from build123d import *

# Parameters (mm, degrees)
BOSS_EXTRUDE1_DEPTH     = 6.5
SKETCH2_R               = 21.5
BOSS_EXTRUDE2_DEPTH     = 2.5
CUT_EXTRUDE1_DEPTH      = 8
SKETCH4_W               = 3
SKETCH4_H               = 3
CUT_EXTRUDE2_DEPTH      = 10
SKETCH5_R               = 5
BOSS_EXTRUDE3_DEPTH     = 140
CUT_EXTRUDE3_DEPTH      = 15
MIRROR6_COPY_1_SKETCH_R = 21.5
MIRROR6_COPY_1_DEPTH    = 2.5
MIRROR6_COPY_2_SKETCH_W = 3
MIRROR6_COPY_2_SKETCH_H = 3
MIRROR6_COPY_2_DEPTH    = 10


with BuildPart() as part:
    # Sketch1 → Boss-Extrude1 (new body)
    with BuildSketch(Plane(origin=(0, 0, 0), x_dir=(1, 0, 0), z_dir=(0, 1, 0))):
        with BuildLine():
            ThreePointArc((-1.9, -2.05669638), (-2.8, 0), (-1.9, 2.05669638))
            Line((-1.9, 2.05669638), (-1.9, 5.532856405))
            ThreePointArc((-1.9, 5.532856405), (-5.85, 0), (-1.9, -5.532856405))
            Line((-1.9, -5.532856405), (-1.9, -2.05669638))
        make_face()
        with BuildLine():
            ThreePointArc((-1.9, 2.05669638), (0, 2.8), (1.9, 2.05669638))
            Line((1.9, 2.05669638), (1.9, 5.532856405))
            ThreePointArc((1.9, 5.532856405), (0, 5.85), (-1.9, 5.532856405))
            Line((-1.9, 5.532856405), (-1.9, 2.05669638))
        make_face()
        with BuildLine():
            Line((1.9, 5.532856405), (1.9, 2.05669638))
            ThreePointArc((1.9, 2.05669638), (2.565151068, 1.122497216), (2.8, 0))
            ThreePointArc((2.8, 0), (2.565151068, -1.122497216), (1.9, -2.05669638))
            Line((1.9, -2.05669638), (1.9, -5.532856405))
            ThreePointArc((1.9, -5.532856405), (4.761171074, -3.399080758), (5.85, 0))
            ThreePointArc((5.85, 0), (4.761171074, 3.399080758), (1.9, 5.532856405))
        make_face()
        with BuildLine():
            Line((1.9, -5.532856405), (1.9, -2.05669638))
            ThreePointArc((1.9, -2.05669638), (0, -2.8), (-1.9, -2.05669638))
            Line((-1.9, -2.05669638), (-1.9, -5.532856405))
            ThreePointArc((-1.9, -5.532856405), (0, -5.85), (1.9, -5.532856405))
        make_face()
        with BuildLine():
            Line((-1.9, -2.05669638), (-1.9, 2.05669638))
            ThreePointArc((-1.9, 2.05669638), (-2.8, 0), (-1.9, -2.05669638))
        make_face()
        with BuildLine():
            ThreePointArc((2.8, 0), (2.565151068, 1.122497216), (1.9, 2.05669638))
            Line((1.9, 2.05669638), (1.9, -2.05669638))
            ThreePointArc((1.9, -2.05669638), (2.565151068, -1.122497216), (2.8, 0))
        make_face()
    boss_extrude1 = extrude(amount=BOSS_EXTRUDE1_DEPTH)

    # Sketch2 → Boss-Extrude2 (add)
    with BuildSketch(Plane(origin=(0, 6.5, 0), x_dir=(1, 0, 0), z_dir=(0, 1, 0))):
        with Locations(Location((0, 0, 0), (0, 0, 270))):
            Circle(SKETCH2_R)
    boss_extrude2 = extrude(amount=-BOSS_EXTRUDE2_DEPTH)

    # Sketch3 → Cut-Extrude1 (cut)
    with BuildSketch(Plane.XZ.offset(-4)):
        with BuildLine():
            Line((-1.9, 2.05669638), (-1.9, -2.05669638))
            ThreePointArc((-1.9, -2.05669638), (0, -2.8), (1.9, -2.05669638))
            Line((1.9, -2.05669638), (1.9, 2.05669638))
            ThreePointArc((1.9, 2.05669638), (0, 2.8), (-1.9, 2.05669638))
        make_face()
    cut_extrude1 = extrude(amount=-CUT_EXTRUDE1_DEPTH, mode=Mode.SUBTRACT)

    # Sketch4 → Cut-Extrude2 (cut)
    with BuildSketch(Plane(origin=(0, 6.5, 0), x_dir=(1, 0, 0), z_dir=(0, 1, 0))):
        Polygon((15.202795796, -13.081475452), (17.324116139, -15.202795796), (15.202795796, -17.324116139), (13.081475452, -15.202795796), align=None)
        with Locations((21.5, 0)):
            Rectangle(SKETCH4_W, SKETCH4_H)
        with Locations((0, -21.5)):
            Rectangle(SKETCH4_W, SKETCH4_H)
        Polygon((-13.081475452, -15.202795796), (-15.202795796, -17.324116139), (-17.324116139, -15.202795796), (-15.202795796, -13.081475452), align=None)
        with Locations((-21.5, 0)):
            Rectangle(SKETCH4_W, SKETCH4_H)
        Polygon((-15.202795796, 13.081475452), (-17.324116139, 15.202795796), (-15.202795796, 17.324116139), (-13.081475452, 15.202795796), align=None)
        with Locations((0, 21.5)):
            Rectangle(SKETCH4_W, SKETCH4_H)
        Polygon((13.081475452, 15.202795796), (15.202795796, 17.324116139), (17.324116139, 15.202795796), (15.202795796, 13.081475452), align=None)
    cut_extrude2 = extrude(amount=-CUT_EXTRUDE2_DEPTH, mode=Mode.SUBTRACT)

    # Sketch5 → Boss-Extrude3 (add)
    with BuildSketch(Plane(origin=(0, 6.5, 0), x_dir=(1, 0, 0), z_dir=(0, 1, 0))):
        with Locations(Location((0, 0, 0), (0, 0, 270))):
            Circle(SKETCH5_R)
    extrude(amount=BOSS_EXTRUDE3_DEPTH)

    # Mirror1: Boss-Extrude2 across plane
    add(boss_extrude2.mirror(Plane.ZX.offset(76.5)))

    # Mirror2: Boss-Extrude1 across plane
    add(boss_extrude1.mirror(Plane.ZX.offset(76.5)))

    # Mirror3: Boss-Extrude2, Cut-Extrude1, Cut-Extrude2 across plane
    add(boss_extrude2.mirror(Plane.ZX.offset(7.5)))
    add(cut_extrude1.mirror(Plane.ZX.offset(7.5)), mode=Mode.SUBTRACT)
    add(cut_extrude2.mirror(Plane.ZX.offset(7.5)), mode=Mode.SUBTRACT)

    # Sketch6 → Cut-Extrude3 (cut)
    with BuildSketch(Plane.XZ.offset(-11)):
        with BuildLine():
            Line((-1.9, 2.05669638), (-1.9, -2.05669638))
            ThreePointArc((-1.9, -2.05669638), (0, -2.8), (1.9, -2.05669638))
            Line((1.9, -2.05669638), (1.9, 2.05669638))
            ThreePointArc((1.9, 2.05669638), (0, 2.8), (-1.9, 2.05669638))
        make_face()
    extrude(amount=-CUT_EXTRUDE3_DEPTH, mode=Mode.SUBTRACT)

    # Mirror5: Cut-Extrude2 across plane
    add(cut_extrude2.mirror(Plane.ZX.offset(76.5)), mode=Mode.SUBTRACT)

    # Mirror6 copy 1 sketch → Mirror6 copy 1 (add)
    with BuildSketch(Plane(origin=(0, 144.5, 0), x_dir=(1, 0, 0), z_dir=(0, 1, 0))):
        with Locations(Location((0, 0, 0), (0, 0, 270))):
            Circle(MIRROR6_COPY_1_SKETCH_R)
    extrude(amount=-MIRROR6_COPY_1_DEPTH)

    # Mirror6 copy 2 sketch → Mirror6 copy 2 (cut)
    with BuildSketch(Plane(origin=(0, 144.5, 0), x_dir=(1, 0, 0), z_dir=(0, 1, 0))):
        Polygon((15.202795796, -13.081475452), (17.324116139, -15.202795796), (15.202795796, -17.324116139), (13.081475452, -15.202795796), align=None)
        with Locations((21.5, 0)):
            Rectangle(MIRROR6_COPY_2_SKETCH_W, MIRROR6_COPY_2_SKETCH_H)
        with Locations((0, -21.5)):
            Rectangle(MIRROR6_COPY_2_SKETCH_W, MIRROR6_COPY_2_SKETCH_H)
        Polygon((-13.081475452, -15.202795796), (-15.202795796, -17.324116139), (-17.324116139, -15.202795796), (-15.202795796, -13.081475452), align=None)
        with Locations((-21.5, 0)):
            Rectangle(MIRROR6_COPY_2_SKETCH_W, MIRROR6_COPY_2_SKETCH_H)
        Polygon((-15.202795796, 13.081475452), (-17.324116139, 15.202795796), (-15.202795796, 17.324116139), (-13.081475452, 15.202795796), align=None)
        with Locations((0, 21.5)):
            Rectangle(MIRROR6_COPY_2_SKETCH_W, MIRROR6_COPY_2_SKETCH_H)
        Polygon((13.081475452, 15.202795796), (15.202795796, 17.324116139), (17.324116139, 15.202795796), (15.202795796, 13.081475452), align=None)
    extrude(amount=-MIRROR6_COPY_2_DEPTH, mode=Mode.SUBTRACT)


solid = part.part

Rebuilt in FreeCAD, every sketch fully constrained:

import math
import FreeCAD as App
import Part
import Sketcher

V = App.Vector

doc = App.newDocument("Part")
params = doc.addObject("Spreadsheet::Sheet", "Params")
for row, (alias, value) in enumerate([
    ("sketch1_radius", "2.8 mm"),
    ("sketch1_radius2", "5.85 mm"),
    ("pad1_length", "6.5 mm"),
    ("sketch2_diameter", "43 mm"),
    ("pad2_length", "2.5 mm"),
    ("sketch3_radius", "2.8 mm"),
    ("pocket1_length", "8 mm"),
    ("sketch4_width", "3 mm"),
    ("sketch4_length", "3 mm"),
    ("pocket2_length", "10 mm"),
    ("sketch5_diameter", "10 mm"),
    ("pad3_length", "140 mm"),
    ("sketch6_radius", "2.8 mm"),
    ("pocket3_length", "15 mm"),
    ("sketch7_diameter", "43 mm"),
    ("pad4_length", "2.5 mm"),
    ("sketch8_width", "3 mm"),
    ("sketch8_length", "3 mm"),
    ("pocket4_length", "10 mm"),
], start=1):
    params.set(f"A{row}", alias)
    params.set(f"B{row}", "=" + value)
    params.setAlias(f"B{row}", alias)

body = doc.addObject("PartDesign::Body", "Body")

# Sketch on XZ plane
sketch1 = body.newObject("Sketcher::SketchObject", "Sketch")
sketch1.AttachmentSupport = (doc.getObject("XZ_Plane"), [""])
sketch1.MapMode = "FlatFace"
sketch1.addGeometry([
    Part.ArcOfCircle(Part.Circle(V(0, 0, 0), V(0, 0, 1), 5.85), math.radians(0), math.radians(71.04737)),  # 0
    Part.ArcOfCircle(Part.Circle(V(0, 0, 0), V(0, 0, 1), 5.85), math.radians(-71.04737), math.radians(0)),  # 1
    Part.ArcOfCircle(Part.Circle(V(0, 0, 0), V(0, 0, 1), 5.85), math.radians(-108.95263), math.radians(-71.04737)),  # 2
    Part.ArcOfCircle(Part.Circle(V(0, 0, 0), V(0, 0, 1), 5.85), math.radians(108.95263), math.radians(251.04737)),  # 3
    Part.ArcOfCircle(Part.Circle(V(0, 0, 0), V(0, 0, 1), 5.85), math.radians(71.04737), math.radians(108.95263)),  # 4
    Part.ArcOfCircle(Part.Circle(V(0, 0, 0), V(0, 0, 1), 2.8), math.radians(-132.73211), math.radians(-47.26789)),  # 5
    Part.LineSegment(V(1.9, -2.056696, 0), V(1.9, 2.056696, 0)),  # 6
    Part.ArcOfCircle(Part.Circle(V(0, 0, 0), V(0, 0, 1), 2.8), math.radians(47.26789), math.radians(132.73211)),  # 7
    Part.LineSegment(V(-1.9, 2.056696, 0), V(-1.9, -2.056696, 0)),  # 8
], False)
sketch1.addConstraint([
    Sketcher.Constraint("Tangent", 0, 1, 1, 2),
    Sketcher.Constraint("Tangent", 1, 1, 2, 2),
    Sketcher.Constraint("Tangent", 2, 1, 3, 2),
    Sketcher.Constraint("Tangent", 3, 1, 4, 2),
    Sketcher.Constraint("Tangent", 4, 1, 0, 2),
    Sketcher.Constraint("Coincident", 5, 2, 6, 1),
    Sketcher.Constraint("Coincident", 6, 2, 7, 1),
    Sketcher.Constraint("Coincident", 7, 2, 8, 1),
    Sketcher.Constraint("Coincident", 8, 2, 5, 1),
    Sketcher.Constraint("Vertical", 6),
    Sketcher.Constraint("Vertical", 8),
    Sketcher.Constraint("Coincident", 0, 3, -1, 1),
    Sketcher.Constraint("Coincident", 2, 3, -1, 1),
    Sketcher.Constraint("Coincident", 5, 3, -1, 1),
    Sketcher.Constraint("Coincident", 7, 3, -1, 1),
    Sketcher.Constraint("Equal", 5, 7),
    Sketcher.Constraint("PointOnObject", 0, 1, -1),
    Sketcher.Constraint("Horizontal", 1, 1, 2, 1),
    Sketcher.Constraint("Horizontal", 3, 1, 4, 1),
    Sketcher.Constraint("Horizontal", 6, 2, 7, 2),
    Sketcher.Constraint("Vertical", 2, 1, 3, 1),
    Sketcher.Constraint("Vertical", 4, 1, 5, 2),
    Sketcher.Constraint("Radius", 5, 2.8),
    Sketcher.Constraint("Radius", 0, 5.85),
    Sketcher.Constraint("DistanceX", -1, 1, 1, 1, 1.9),
])
sketch1.setExpression("Constraints[22]", "Params.sketch1_radius")
sketch1.setExpression("Constraints[23]", "Params.sketch1_radius2")
pad1 = body.newObject("PartDesign::Pad", "Pad")
pad1.Profile = sketch1
pad1.setExpression("Length", "Params.pad1_length")
pad1.Reversed = True

# Sketch on XZ plane
sketch2 = body.newObject("Sketcher::SketchObject", "Sketch001")
sketch2.AttachmentSupport = (doc.getObject("XZ_Plane"), [""])
sketch2.MapMode = "FlatFace"
sketch2.AttachmentOffset = App.Placement(V(0, 0, -6.5), App.Rotation())
sketch2.addGeometry(Part.Circle(V(0, 0, 0), V(0, 0, 1), 21.5), False)
sketch2.addConstraint([
    Sketcher.Constraint("Coincident", 0, 3, -1, 1),
    Sketcher.Constraint("Diameter", 0, 43.0),
])
sketch2.setExpression("Constraints[1]", "Params.sketch2_diameter")
pad2 = body.newObject("PartDesign::Pad", "Pad001")
pad2.Profile = sketch2
pad2.setExpression("Length", "Params.pad2_length")

# Sketch on XZ plane
sketch3 = body.newObject("Sketcher::SketchObject", "Sketch002")
sketch3.AttachmentSupport = (doc.getObject("XZ_Plane"), [""])
sketch3.MapMode = "FlatFace"
sketch3.AttachmentOffset = App.Placement(V(0, 0, -4), App.Rotation())
sketch3.addGeometry([
    Part.LineSegment(V(-1.9, 2.056696, 0), V(-1.9, -2.056696, 0)),
    Part.ArcOfCircle(Part.Circle(V(0, 0, 0), V(0, 0, 1), 2.8), math.radians(-132.73211), math.radians(-47.26789)),
    Part.LineSegment(V(1.9, -2.056696, 0), V(1.9, 2.056696, 0)),
    Part.ArcOfCircle(Part.Circle(V(0, 0, 0), V(0, 0, 1), 2.8), math.radians(47.26789), math.radians(132.73211)),
], False)
sketch3.addConstraint([
    Sketcher.Constraint("Coincident", 0, 2, 1, 1),
    Sketcher.Constraint("Coincident", 1, 2, 2, 1),
    Sketcher.Constraint("Coincident", 2, 2, 3, 1),
    Sketcher.Constraint("Coincident", 3, 2, 0, 1),
    Sketcher.Constraint("Vertical", 0),
    Sketcher.Constraint("Vertical", 2),
    Sketcher.Constraint("Coincident", 1, 3, -1, 1),
    Sketcher.Constraint("Coincident", 3, 3, -1, 1),
    Sketcher.Constraint("Equal", 1, 3),
    Sketcher.Constraint("Horizontal", 0, 2, 1, 2),
    Sketcher.Constraint("Radius", 1, 2.8),
    Sketcher.Constraint("DistanceX", 0, 2, -1, 1, 1.9),
])
sketch3.setExpression("Constraints[10]", "Params.sketch3_radius")
pocket1 = body.newObject("PartDesign::Pocket", "Pocket")
pocket1.Profile = sketch3
pocket1.setExpression("Length", "Params.pocket1_length")

# Sketch on XZ plane
sketch4 = body.newObject("Sketcher::SketchObject", "Sketch003")
sketch4.AttachmentSupport = (doc.getObject("XZ_Plane"), [""])
sketch4.MapMode = "FlatFace"
sketch4.AttachmentOffset = App.Placement(V(0, 0, -6.5), App.Rotation())
sketch4.addGeometry([
    Part.LineSegment(V(17.324116, 15.202796, 0), V(15.202796, 13.081475, 0)),  # 0
    Part.LineSegment(V(15.202796, 13.081475, 0), V(13.081475, 15.202796, 0)),  # 1
    Part.LineSegment(V(13.081475, 15.202796, 0), V(15.202796, 17.324116, 0)),  # 2
    Part.LineSegment(V(15.202796, 17.324116, 0), V(17.324116, 15.202796, 0)),  # 3
    Part.LineSegment(V(20, -1.5, 0), V(20, 1.5, 0)),  # 4
    Part.LineSegment(V(20, 1.5, 0), V(23, 1.5, 0)),  # 5
    Part.LineSegment(V(23, 1.5, 0), V(23, -1.5, 0)),  # 6
    Part.LineSegment(V(23, -1.5, 0), V(20, -1.5, 0)),  # 7
    Part.LineSegment(V(-1.5, 20, 0), V(-1.5, 23, 0)),  # 8
    Part.LineSegment(V(-1.5, 23, 0), V(1.5, 23, 0)),  # 9
    Part.LineSegment(V(1.5, 23, 0), V(1.5, 20, 0)),  # 10
    Part.LineSegment(V(1.5, 20, 0), V(-1.5, 20, 0)),  # 11
    Part.LineSegment(V(-15.202796, 17.324116, 0), V(-13.081475, 15.202796, 0)),  # 12
    Part.LineSegment(V(-13.081475, 15.202796, 0), V(-15.202796, 13.081475, 0)),  # 13
    Part.LineSegment(V(-15.202796, 13.081475, 0), V(-17.324116, 15.202796, 0)),  # 14
    Part.LineSegment(V(-17.324116, 15.202796, 0), V(-15.202796, 17.324116, 0)),  # 15
    Part.LineSegment(V(-23, -1.5, 0), V(-23, 1.5, 0)),  # 16
    Part.LineSegment(V(-23, 1.5, 0), V(-20, 1.5, 0)),  # 17
    Part.LineSegment(V(-20, 1.5, 0), V(-20, -1.5, 0)),  # 18
    Part.LineSegment(V(-20, -1.5, 0), V(-23, -1.5, 0)),  # 19
    Part.LineSegment(V(-17.324116, -15.202796, 0), V(-15.202796, -13.081475, 0)),  # 20
    Part.LineSegment(V(-15.202796, -13.081475, 0), V(-13.081475, -15.202796, 0)),  # 21
    Part.LineSegment(V(-13.081475, -15.202796, 0), V(-15.202796, -17.324116, 0)),  # 22
    Part.LineSegment(V(-15.202796, -17.324116, 0), V(-17.324116, -15.202796, 0)),  # 23
    Part.LineSegment(V(-1.5, -23, 0), V(-1.5, -20, 0)),  # 24
    Part.LineSegment(V(-1.5, -20, 0), V(1.5, -20, 0)),  # 25
    Part.LineSegment(V(1.5, -20, 0), V(1.5, -23, 0)),  # 26
    Part.LineSegment(V(1.5, -23, 0), V(-1.5, -23, 0)),  # 27
    Part.LineSegment(V(15.202796, -17.324116, 0), V(13.081475, -15.202796, 0)),  # 28
    Part.LineSegment(V(13.081475, -15.202796, 0), V(15.202796, -13.081475, 0)),  # 29
    Part.LineSegment(V(15.202796, -13.081475, 0), V(17.324116, -15.202796, 0)),  # 30
    Part.LineSegment(V(17.324116, -15.202796, 0), V(15.202796, -17.324116, 0)),  # 31
], False)
sketch4.addConstraint([
    Sketcher.Constraint("Coincident", 0, 2, 1, 1),
    Sketcher.Constraint("Coincident", 1, 2, 2, 1),
    Sketcher.Constraint("Coincident", 2, 2, 3, 1),
    Sketcher.Constraint("Coincident", 3, 2, 0, 1),
    Sketcher.Constraint("Coincident", 4, 2, 5, 1),
    Sketcher.Constraint("Coincident", 5, 2, 6, 1),
    Sketcher.Constraint("Coincident", 6, 2, 7, 1),
    Sketcher.Constraint("Coincident", 7, 2, 4, 1),
    Sketcher.Constraint("Coincident", 8, 2, 9, 1),
    Sketcher.Constraint("Coincident", 9, 2, 10, 1),
    Sketcher.Constraint("Coincident", 10, 2, 11, 1),
    Sketcher.Constraint("Coincident", 11, 2, 8, 1),
    Sketcher.Constraint("Coincident", 12, 2, 13, 1),
    Sketcher.Constraint("Coincident", 13, 2, 14, 1),
    Sketcher.Constraint("Coincident", 14, 2, 15, 1),
    Sketcher.Constraint("Coincident", 15, 2, 12, 1),
    Sketcher.Constraint("Coincident", 16, 2, 17, 1),
    Sketcher.Constraint("Coincident", 17, 2, 18, 1),
    Sketcher.Constraint("Coincident", 18, 2, 19, 1),
    Sketcher.Constraint("Coincident", 19, 2, 16, 1),
    Sketcher.Constraint("Coincident", 20, 2, 21, 1),
    Sketcher.Constraint("Coincident", 21, 2, 22, 1),
    Sketcher.Constraint("Coincident", 22, 2, 23, 1),
    Sketcher.Constraint("Coincident", 23, 2, 20, 1),
    Sketcher.Constraint("Coincident", 24, 2, 25, 1),
    Sketcher.Constraint("Coincident", 25, 2, 26, 1),
    Sketcher.Constraint("Coincident", 26, 2, 27, 1),
    Sketcher.Constraint("Coincident", 27, 2, 24, 1),
    Sketcher.Constraint("Coincident", 28, 2, 29, 1),
    Sketcher.Constraint("Coincident", 29, 2, 30, 1),
    Sketcher.Constraint("Coincident", 30, 2, 31, 1),
    Sketcher.Constraint("Coincident", 31, 2, 28, 1),
    Sketcher.Constraint("Vertical", 4),
    Sketcher.Constraint("Horizontal", 5),
    Sketcher.Constraint("Vertical", 6),
    Sketcher.Constraint("Horizontal", 7),
    Sketcher.Constraint("Vertical", 8),
    Sketcher.Constraint("Horizontal", 9),
    Sketcher.Constraint("Vertical", 10),
    Sketcher.Constraint("Horizontal", 11),
    Sketcher.Constraint("Vertical", 16),
    Sketcher.Constraint("Horizontal", 17),
    Sketcher.Constraint("Vertical", 18),
    Sketcher.Constraint("Horizontal", 19),
    Sketcher.Constraint("Vertical", 24),
    Sketcher.Constraint("Horizontal", 25),
    Sketcher.Constraint("Vertical", 26),
    Sketcher.Constraint("Horizontal", 27),
    Sketcher.Constraint("Symmetric", 6, 2, 16, 2, -1, 1),
    Sketcher.Constraint("Symmetric", 4, 2, 18, 2, -1, 1),
    Sketcher.Constraint("Symmetric", 0, 2, 20, 2, -1, 1),
    Sketcher.Constraint("Symmetric", 1, 2, 21, 2, -1, 1),
    Sketcher.Constraint("Symmetric", 2, 2, 22, 2, -1, 1),
    Sketcher.Constraint("Symmetric", 3, 2, 23, 2, -1, 1),
    Sketcher.Constraint("Symmetric", 10, 2, 24, 2, -1, 1),
    Sketcher.Constraint("Symmetric", 8, 2, 26, 2, -1, 1),
    Sketcher.Constraint("Symmetric", 12, 2, 28, 2, -1, 1),
    Sketcher.Constraint("Symmetric", 13, 2, 29, 2, -1, 1),
    Sketcher.Constraint("Symmetric", 14, 2, 30, 2, -1, 1),
    Sketcher.Constraint("Symmetric", 15, 2, 31, 2, -1, 1),
    Sketcher.Constraint("Symmetric", 1, 2, 12, 2, -2),
    Sketcher.Constraint("Symmetric", 0, 2, 13, 2, -2),
    Sketcher.Constraint("Symmetric", 3, 2, 14, 2, -2),
    Sketcher.Constraint("Symmetric", 2, 2, 15, 2, -2),
    Sketcher.Constraint("Perpendicular", 0, 1),
    Sketcher.Constraint("Perpendicular", 1, 2),
    Sketcher.Constraint("Perpendicular", 2, 3),
    Sketcher.Constraint("Parallel", 3, 12),
    Sketcher.Constraint("Horizontal", 1, 2, 3, 2),
    Sketcher.Constraint("Horizontal", 5, 2, 16, 2),
    Sketcher.Constraint("Vertical", 11, 2, 24, 2),
    Sketcher.Constraint("Equal", 7, 9),
    Sketcher.Constraint("Equal", 27, 4),
    Sketcher.Constraint("Equal", 6, 8),
    Sketcher.Constraint("DistanceX", 5, 1, 5, 2, 3.0),
    Sketcher.Constraint("Distance", 0, 3.0),
    Sketcher.Constraint("DistanceX", -1, 1, 4, 2, 20.0),
    Sketcher.Constraint("DistanceY", -1, 1, 8, 2, 23.0),
    Sketcher.Constraint("DistanceX", 12, 2, 1, 2, 26.162951),
    Sketcher.Constraint("DistanceY", 20, 2, 13, 2, 26.162951),
])
sketch4.setExpression("Constraints[74]", "Params.sketch4_width")
sketch4.setExpression("Constraints[75]", "Params.sketch4_length")
pocket2 = body.newObject("PartDesign::Pocket", "Pocket001")
pocket2.Profile = sketch4
pocket2.setExpression("Length", "Params.pocket2_length")
pocket2.Reversed = True

# Sketch on XZ plane
sketch5 = body.newObject("Sketcher::SketchObject", "Sketch004")
sketch5.AttachmentSupport = (doc.getObject("XZ_Plane"), [""])
sketch5.MapMode = "FlatFace"
sketch5.AttachmentOffset = App.Placement(V(0, 0, -6.5), App.Rotation())
sketch5.addGeometry(Part.Circle(V(0, 0, 0), V(0, 0, 1), 5), False)
sketch5.addConstraint([
    Sketcher.Constraint("Coincident", 0, 3, -1, 1),
    Sketcher.Constraint("Diameter", 0, 10.0),
])
sketch5.setExpression("Constraints[1]", "Params.sketch5_diameter")
pad3 = body.newObject("PartDesign::Pad", "Pad002")
pad3.Profile = sketch5
pad3.setExpression("Length", "Params.pad3_length")
pad3.Reversed = True
doc.recompute()

datumplane = body.newObject("PartDesign::Plane", "DatumPlane")
datumplane.AttachmentSupport = (doc.getObject("XZ_Plane"), [""])
datumplane.MapMode = "FlatFace"
datumplane.AttachmentOffset = App.Placement(V(0, 0, -76.5), App.Rotation())
mirrored = body.newObject("PartDesign::Mirrored", "Mirrored")
mirrored.Originals = [pad2]
mirrored.MirrorPlane = (datumplane, [""])
body.Tip = mirrored
doc.recompute()

datumplane2 = body.newObject("PartDesign::Plane", "DatumPlane001")
datumplane2.AttachmentSupport = (doc.getObject("XZ_Plane"), [""])
datumplane2.MapMode = "FlatFace"
datumplane2.AttachmentOffset = App.Placement(V(0, 0, -76.5), App.Rotation())
mirrored2 = body.newObject("PartDesign::Mirrored", "Mirrored001")
mirrored2.Originals = [pad1]
mirrored2.MirrorPlane = (datumplane2, [""])
body.Tip = mirrored2
doc.recompute()

datumplane3 = body.newObject("PartDesign::Plane", "DatumPlane002")
datumplane3.AttachmentSupport = (doc.getObject("XZ_Plane"), [""])
datumplane3.MapMode = "FlatFace"
datumplane3.AttachmentOffset = App.Placement(V(0, 0, -7.5), App.Rotation())
mirrored3 = body.newObject("PartDesign::Mirrored", "Mirrored002")
mirrored3.Originals = [pad2, pocket1, pocket2]
mirrored3.MirrorPlane = (datumplane3, [""])
body.Tip = mirrored3

# Sketch on XZ plane
sketch6 = body.newObject("Sketcher::SketchObject", "Sketch005")
sketch6.AttachmentSupport = (doc.getObject("XZ_Plane"), [""])
sketch6.MapMode = "FlatFace"
sketch6.AttachmentOffset = App.Placement(V(0, 0, -11), App.Rotation())
sketch6.addGeometry([
    Part.LineSegment(V(-1.9, 2.056696, 0), V(-1.9, -2.056696, 0)),
    Part.ArcOfCircle(Part.Circle(V(0, 0, 0), V(0, 0, 1), 2.8), math.radians(-132.73211), math.radians(-47.26789)),
    Part.LineSegment(V(1.9, -2.056696, 0), V(1.9, 2.056696, 0)),
    Part.ArcOfCircle(Part.Circle(V(0, 0, 0), V(0, 0, 1), 2.8), math.radians(47.26789), math.radians(132.73211)),
], False)
sketch6.addConstraint([
    Sketcher.Constraint("Coincident", 0, 2, 1, 1),
    Sketcher.Constraint("Coincident", 1, 2, 2, 1),
    Sketcher.Constraint("Coincident", 2, 2, 3, 1),
    Sketcher.Constraint("Coincident", 3, 2, 0, 1),
    Sketcher.Constraint("Vertical", 0),
    Sketcher.Constraint("Vertical", 2),
    Sketcher.Constraint("Coincident", 1, 3, -1, 1),
    Sketcher.Constraint("Coincident", 3, 3, -1, 1),
    Sketcher.Constraint("Equal", 1, 3),
    Sketcher.Constraint("Horizontal", 0, 2, 1, 2),
    Sketcher.Constraint("Radius", 1, 2.8),
    Sketcher.Constraint("DistanceX", 0, 2, -1, 1, 1.9),
])
sketch6.setExpression("Constraints[10]", "Params.sketch6_radius")
pocket3 = body.newObject("PartDesign::Pocket", "Pocket002")
pocket3.Profile = sketch6
pocket3.setExpression("Length", "Params.pocket3_length")
doc.recompute()

datumplane4 = body.newObject("PartDesign::Plane", "DatumPlane003")
datumplane4.AttachmentSupport = (doc.getObject("XZ_Plane"), [""])
datumplane4.MapMode = "FlatFace"
datumplane4.AttachmentOffset = App.Placement(V(0, 0, -76.5), App.Rotation())
mirrored4 = body.newObject("PartDesign::Mirrored", "Mirrored003")
mirrored4.Originals = [pocket2]
mirrored4.MirrorPlane = (datumplane4, [""])
body.Tip = mirrored4

# Sketch on XZ plane
sketch7 = body.newObject("Sketcher::SketchObject", "Sketch006")
sketch7.AttachmentSupport = (doc.getObject("XZ_Plane"), [""])
sketch7.MapMode = "FlatFace"
sketch7.AttachmentOffset = App.Placement(V(0, 0, -144.5), App.Rotation())
sketch7.addGeometry(Part.Circle(V(0, 0, 0), V(0, 0, 1), 21.5), False)
sketch7.addConstraint([
    Sketcher.Constraint("Coincident", 0, 3, -1, 1),
    Sketcher.Constraint("Diameter", 0, 43.0),
])
sketch7.setExpression("Constraints[1]", "Params.sketch7_diameter")
pad4 = body.newObject("PartDesign::Pad", "Pad003")
pad4.Profile = sketch7
pad4.setExpression("Length", "Params.pad4_length")

# Sketch on XZ plane
sketch8 = body.newObject("Sketcher::SketchObject", "Sketch007")
sketch8.AttachmentSupport = (doc.getObject("XZ_Plane"), [""])
sketch8.MapMode = "FlatFace"
sketch8.AttachmentOffset = App.Placement(V(0, 0, -144.5), App.Rotation())
sketch8.addGeometry([
    Part.LineSegment(V(17.324116, 15.202796, 0), V(15.202796, 13.081475, 0)),  # 0
    Part.LineSegment(V(15.202796, 13.081475, 0), V(13.081475, 15.202796, 0)),  # 1
    Part.LineSegment(V(13.081475, 15.202796, 0), V(15.202796, 17.324116, 0)),  # 2
    Part.LineSegment(V(15.202796, 17.324116, 0), V(17.324116, 15.202796, 0)),  # 3
    Part.LineSegment(V(20, -1.5, 0), V(20, 1.5, 0)),  # 4
    Part.LineSegment(V(20, 1.5, 0), V(23, 1.5, 0)),  # 5
    Part.LineSegment(V(23, 1.5, 0), V(23, -1.5, 0)),  # 6
    Part.LineSegment(V(23, -1.5, 0), V(20, -1.5, 0)),  # 7
    Part.LineSegment(V(-1.5, 20, 0), V(-1.5, 23, 0)),  # 8
    Part.LineSegment(V(-1.5, 23, 0), V(1.5, 23, 0)),  # 9
    Part.LineSegment(V(1.5, 23, 0), V(1.5, 20, 0)),  # 10
    Part.LineSegment(V(1.5, 20, 0), V(-1.5, 20, 0)),  # 11
    Part.LineSegment(V(-15.202796, 17.324116, 0), V(-13.081475, 15.202796, 0)),  # 12
    Part.LineSegment(V(-13.081475, 15.202796, 0), V(-15.202796, 13.081475, 0)),  # 13
    Part.LineSegment(V(-15.202796, 13.081475, 0), V(-17.324116, 15.202796, 0)),  # 14
    Part.LineSegment(V(-17.324116, 15.202796, 0), V(-15.202796, 17.324116, 0)),  # 15
    Part.LineSegment(V(-23, -1.5, 0), V(-23, 1.5, 0)),  # 16
    Part.LineSegment(V(-23, 1.5, 0), V(-20, 1.5, 0)),  # 17
    Part.LineSegment(V(-20, 1.5, 0), V(-20, -1.5, 0)),  # 18
    Part.LineSegment(V(-20, -1.5, 0), V(-23, -1.5, 0)),  # 19
    Part.LineSegment(V(-17.324116, -15.202796, 0), V(-15.202796, -13.081475, 0)),  # 20
    Part.LineSegment(V(-15.202796, -13.081475, 0), V(-13.081475, -15.202796, 0)),  # 21
    Part.LineSegment(V(-13.081475, -15.202796, 0), V(-15.202796, -17.324116, 0)),  # 22
    Part.LineSegment(V(-15.202796, -17.324116, 0), V(-17.324116, -15.202796, 0)),  # 23
    Part.LineSegment(V(-1.5, -23, 0), V(-1.5, -20, 0)),  # 24
    Part.LineSegment(V(-1.5, -20, 0), V(1.5, -20, 0)),  # 25
    Part.LineSegment(V(1.5, -20, 0), V(1.5, -23, 0)),  # 26
    Part.LineSegment(V(1.5, -23, 0), V(-1.5, -23, 0)),  # 27
    Part.LineSegment(V(15.202796, -17.324116, 0), V(13.081475, -15.202796, 0)),  # 28
    Part.LineSegment(V(13.081475, -15.202796, 0), V(15.202796, -13.081475, 0)),  # 29
    Part.LineSegment(V(15.202796, -13.081475, 0), V(17.324116, -15.202796, 0)),  # 30
    Part.LineSegment(V(17.324116, -15.202796, 0), V(15.202796, -17.324116, 0)),  # 31
], False)
sketch8.addConstraint([
    Sketcher.Constraint("Coincident", 0, 2, 1, 1),
    Sketcher.Constraint("Coincident", 1, 2, 2, 1),
    Sketcher.Constraint("Coincident", 2, 2, 3, 1),
    Sketcher.Constraint("Coincident", 3, 2, 0, 1),
    Sketcher.Constraint("Coincident", 4, 2, 5, 1),
    Sketcher.Constraint("Coincident", 5, 2, 6, 1),
    Sketcher.Constraint("Coincident", 6, 2, 7, 1),
    Sketcher.Constraint("Coincident", 7, 2, 4, 1),
    Sketcher.Constraint("Coincident", 8, 2, 9, 1),
    Sketcher.Constraint("Coincident", 9, 2, 10, 1),
    Sketcher.Constraint("Coincident", 10, 2, 11, 1),
    Sketcher.Constraint("Coincident", 11, 2, 8, 1),
    Sketcher.Constraint("Coincident", 12, 2, 13, 1),
    Sketcher.Constraint("Coincident", 13, 2, 14, 1),
    Sketcher.Constraint("Coincident", 14, 2, 15, 1),
    Sketcher.Constraint("Coincident", 15, 2, 12, 1),
    Sketcher.Constraint("Coincident", 16, 2, 17, 1),
    Sketcher.Constraint("Coincident", 17, 2, 18, 1),
    Sketcher.Constraint("Coincident", 18, 2, 19, 1),
    Sketcher.Constraint("Coincident", 19, 2, 16, 1),
    Sketcher.Constraint("Coincident", 20, 2, 21, 1),
    Sketcher.Constraint("Coincident", 21, 2, 22, 1),
    Sketcher.Constraint("Coincident", 22, 2, 23, 1),
    Sketcher.Constraint("Coincident", 23, 2, 20, 1),
    Sketcher.Constraint("Coincident", 24, 2, 25, 1),
    Sketcher.Constraint("Coincident", 25, 2, 26, 1),
    Sketcher.Constraint("Coincident", 26, 2, 27, 1),
    Sketcher.Constraint("Coincident", 27, 2, 24, 1),
    Sketcher.Constraint("Coincident", 28, 2, 29, 1),
    Sketcher.Constraint("Coincident", 29, 2, 30, 1),
    Sketcher.Constraint("Coincident", 30, 2, 31, 1),
    Sketcher.Constraint("Coincident", 31, 2, 28, 1),
    Sketcher.Constraint("Vertical", 4),
    Sketcher.Constraint("Horizontal", 5),
    Sketcher.Constraint("Vertical", 6),
    Sketcher.Constraint("Horizontal", 7),
    Sketcher.Constraint("Vertical", 8),
    Sketcher.Constraint("Horizontal", 9),
    Sketcher.Constraint("Vertical", 10),
    Sketcher.Constraint("Horizontal", 11),
    Sketcher.Constraint("Vertical", 16),
    Sketcher.Constraint("Horizontal", 17),
    Sketcher.Constraint("Vertical", 18),
    Sketcher.Constraint("Horizontal", 19),
    Sketcher.Constraint("Vertical", 24),
    Sketcher.Constraint("Horizontal", 25),
    Sketcher.Constraint("Vertical", 26),
    Sketcher.Constraint("Horizontal", 27),
    Sketcher.Constraint("Symmetric", 6, 2, 16, 2, -1, 1),
    Sketcher.Constraint("Symmetric", 4, 2, 18, 2, -1, 1),
    Sketcher.Constraint("Symmetric", 0, 2, 20, 2, -1, 1),
    Sketcher.Constraint("Symmetric", 1, 2, 21, 2, -1, 1),
    Sketcher.Constraint("Symmetric", 2, 2, 22, 2, -1, 1),
    Sketcher.Constraint("Symmetric", 3, 2, 23, 2, -1, 1),
    Sketcher.Constraint("Symmetric", 10, 2, 24, 2, -1, 1),
    Sketcher.Constraint("Symmetric", 8, 2, 26, 2, -1, 1),
    Sketcher.Constraint("Symmetric", 12, 2, 28, 2, -1, 1),
    Sketcher.Constraint("Symmetric", 13, 2, 29, 2, -1, 1),
    Sketcher.Constraint("Symmetric", 14, 2, 30, 2, -1, 1),
    Sketcher.Constraint("Symmetric", 15, 2, 31, 2, -1, 1),
    Sketcher.Constraint("Symmetric", 1, 2, 12, 2, -2),
    Sketcher.Constraint("Symmetric", 0, 2, 13, 2, -2),
    Sketcher.Constraint("Symmetric", 3, 2, 14, 2, -2),
    Sketcher.Constraint("Symmetric", 2, 2, 15, 2, -2),
    Sketcher.Constraint("Perpendicular", 0, 1),
    Sketcher.Constraint("Perpendicular", 1, 2),
    Sketcher.Constraint("Perpendicular", 2, 3),
    Sketcher.Constraint("Parallel", 3, 12),
    Sketcher.Constraint("Horizontal", 1, 2, 3, 2),
    Sketcher.Constraint("Horizontal", 5, 2, 16, 2),
    Sketcher.Constraint("Vertical", 11, 2, 24, 2),
    Sketcher.Constraint("Equal", 7, 9),
    Sketcher.Constraint("Equal", 27, 4),
    Sketcher.Constraint("Equal", 6, 8),
    Sketcher.Constraint("DistanceX", 5, 1, 5, 2, 3.0),
    Sketcher.Constraint("Distance", 0, 3.0),
    Sketcher.Constraint("DistanceX", -1, 1, 4, 2, 20.0),
    Sketcher.Constraint("DistanceY", -1, 1, 8, 2, 23.0),
    Sketcher.Constraint("DistanceX", 12, 2, 1, 2, 26.162951),
    Sketcher.Constraint("DistanceY", 20, 2, 13, 2, 26.162951),
])
sketch8.setExpression("Constraints[74]", "Params.sketch8_width")
sketch8.setExpression("Constraints[75]", "Params.sketch8_length")
pocket4 = body.newObject("PartDesign::Pocket", "Pocket003")
pocket4.Profile = sketch8
pocket4.setExpression("Length", "Params.pocket4_length")
pocket4.Reversed = True

doc.recompute()
